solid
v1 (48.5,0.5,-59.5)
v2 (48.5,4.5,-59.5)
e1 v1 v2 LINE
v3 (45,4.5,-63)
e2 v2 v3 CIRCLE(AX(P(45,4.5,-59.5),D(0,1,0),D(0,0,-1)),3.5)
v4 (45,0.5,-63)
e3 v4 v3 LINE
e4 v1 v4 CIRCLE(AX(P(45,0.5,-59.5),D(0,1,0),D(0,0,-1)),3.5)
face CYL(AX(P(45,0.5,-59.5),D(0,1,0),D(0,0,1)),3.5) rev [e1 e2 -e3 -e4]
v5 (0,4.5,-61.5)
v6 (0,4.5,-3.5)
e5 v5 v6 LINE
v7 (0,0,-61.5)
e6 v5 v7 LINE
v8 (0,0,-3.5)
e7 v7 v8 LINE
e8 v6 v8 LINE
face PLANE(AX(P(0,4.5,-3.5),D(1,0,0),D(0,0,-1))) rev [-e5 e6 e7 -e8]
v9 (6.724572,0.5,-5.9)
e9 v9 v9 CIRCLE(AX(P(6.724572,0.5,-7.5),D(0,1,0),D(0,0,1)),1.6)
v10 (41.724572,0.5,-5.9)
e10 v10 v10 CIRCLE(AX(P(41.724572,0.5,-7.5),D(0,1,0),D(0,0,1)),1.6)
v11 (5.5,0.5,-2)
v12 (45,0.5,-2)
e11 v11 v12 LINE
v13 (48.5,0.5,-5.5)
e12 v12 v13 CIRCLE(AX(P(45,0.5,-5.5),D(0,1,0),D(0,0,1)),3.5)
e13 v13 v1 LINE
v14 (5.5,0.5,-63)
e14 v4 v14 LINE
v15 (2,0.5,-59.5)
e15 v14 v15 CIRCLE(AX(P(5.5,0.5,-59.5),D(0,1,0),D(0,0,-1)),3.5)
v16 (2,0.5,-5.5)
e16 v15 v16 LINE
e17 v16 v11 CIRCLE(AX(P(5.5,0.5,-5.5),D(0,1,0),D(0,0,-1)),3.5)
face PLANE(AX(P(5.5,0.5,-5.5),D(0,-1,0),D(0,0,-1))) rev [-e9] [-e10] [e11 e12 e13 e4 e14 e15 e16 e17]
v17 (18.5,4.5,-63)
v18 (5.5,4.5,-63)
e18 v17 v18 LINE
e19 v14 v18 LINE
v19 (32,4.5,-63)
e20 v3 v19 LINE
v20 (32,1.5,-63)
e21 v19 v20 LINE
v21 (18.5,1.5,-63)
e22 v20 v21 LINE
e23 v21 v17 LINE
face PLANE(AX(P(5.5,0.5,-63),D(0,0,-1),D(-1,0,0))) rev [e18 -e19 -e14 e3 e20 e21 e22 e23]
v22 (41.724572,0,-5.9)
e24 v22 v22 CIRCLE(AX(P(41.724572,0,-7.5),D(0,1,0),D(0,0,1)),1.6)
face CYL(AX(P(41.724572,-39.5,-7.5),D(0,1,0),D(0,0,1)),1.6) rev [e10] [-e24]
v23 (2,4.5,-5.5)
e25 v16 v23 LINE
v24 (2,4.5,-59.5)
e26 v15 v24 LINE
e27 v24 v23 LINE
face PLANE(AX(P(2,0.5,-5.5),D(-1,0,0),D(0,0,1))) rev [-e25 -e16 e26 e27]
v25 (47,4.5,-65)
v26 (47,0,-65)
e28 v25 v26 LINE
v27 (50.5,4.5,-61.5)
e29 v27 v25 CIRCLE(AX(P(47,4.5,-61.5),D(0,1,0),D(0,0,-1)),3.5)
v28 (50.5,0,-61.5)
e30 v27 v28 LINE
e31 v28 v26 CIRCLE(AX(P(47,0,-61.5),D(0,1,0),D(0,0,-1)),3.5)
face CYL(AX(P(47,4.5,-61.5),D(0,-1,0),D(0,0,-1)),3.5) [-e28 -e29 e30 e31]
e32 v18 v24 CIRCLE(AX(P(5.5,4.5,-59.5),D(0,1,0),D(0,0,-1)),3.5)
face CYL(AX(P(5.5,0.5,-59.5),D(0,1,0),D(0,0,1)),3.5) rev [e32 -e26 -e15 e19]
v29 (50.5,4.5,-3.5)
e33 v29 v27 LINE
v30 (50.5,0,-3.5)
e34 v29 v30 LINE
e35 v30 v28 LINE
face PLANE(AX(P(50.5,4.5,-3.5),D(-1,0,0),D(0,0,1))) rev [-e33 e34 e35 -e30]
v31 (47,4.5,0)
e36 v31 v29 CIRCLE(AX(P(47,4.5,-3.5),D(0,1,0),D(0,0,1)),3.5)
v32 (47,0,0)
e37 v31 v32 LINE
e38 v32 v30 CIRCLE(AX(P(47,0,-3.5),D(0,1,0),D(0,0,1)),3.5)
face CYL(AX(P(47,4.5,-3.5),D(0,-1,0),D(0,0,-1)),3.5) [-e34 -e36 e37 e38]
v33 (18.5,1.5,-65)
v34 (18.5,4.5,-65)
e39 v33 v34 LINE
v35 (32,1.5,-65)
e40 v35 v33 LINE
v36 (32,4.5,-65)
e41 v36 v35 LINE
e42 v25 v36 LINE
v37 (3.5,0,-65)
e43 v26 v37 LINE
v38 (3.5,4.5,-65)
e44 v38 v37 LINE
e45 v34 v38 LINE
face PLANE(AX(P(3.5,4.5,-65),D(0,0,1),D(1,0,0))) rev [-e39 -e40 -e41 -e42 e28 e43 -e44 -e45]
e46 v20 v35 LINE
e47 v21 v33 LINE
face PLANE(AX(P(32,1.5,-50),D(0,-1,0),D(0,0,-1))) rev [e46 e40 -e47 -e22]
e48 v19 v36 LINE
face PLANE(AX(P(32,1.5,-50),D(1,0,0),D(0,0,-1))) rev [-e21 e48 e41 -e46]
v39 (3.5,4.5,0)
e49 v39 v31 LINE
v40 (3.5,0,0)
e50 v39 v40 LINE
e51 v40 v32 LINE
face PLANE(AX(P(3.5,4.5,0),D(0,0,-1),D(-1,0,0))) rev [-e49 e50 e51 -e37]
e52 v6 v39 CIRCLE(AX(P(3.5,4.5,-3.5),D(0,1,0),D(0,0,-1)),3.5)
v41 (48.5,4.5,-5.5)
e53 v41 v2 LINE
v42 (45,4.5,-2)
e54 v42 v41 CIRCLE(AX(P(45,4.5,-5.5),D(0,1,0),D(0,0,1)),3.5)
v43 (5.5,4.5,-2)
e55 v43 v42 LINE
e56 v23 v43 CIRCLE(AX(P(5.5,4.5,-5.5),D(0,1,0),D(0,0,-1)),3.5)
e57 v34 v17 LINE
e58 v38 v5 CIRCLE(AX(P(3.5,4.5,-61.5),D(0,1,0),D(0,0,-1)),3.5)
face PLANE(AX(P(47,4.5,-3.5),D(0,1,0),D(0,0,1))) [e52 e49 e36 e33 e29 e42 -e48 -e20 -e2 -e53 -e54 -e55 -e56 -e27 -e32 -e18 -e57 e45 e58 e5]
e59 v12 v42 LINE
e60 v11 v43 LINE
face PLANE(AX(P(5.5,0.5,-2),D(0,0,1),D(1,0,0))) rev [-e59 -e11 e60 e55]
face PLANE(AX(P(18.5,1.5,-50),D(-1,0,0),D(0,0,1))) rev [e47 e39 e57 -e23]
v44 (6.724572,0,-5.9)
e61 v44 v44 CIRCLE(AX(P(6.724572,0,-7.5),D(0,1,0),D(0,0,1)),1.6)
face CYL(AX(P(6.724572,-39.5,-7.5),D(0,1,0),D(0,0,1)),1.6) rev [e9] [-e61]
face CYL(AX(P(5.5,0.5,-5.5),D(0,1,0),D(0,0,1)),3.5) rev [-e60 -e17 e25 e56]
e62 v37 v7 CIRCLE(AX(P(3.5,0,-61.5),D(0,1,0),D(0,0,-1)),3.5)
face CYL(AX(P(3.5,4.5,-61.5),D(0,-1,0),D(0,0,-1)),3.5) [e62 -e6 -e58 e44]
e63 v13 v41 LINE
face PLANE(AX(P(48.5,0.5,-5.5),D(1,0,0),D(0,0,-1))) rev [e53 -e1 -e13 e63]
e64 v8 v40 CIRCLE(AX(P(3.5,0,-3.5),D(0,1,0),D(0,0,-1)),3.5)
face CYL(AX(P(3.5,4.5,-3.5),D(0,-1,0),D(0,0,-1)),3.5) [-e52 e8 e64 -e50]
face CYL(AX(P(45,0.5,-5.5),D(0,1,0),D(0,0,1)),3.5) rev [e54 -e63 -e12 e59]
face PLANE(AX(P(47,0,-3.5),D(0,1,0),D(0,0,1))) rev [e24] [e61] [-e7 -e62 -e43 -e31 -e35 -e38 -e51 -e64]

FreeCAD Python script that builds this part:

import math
import FreeCAD as App
import Part
import Sketcher

V = App.Vector
Q = App.Units.Quantity


def add_polygon(sketch, points):
    """Adds a closed chain of lines whose ends are joined by coincident constraints."""
    first, n = sketch.GeometryCount, len(points)
    for a, b in zip(points, points[1:] + points[:1]):
        sketch.addGeometry(Part.LineSegment(App.Vector(*a, 0), App.Vector(*b, 0)), False)
    for i in range(n):
        sketch.addConstraint(Sketcher.Constraint("Coincident", first + i, 2, first + (i + 1) % n, 1))

doc = App.newDocument("Part")
params = doc.addObject("Spreadsheet::Sheet", "Params")
for row, (alias, value) in enumerate([
    ("sketch1_radius", "3.5 mm"),
    ("sketch1_height", "58 mm"),
    ("sketch1_width", "43.5 mm"),
    ("pad1_length", "4.5 mm"),
    ("sketch2_radius", "3.5 mm"),
    ("sketch2_height", "54 mm"),
    ("sketch2_width", "39.5 mm"),
    ("pocket1_length", "4 mm"),
    ("sketch3_height", "6 mm"),
    ("sketch3_width", "13.5 mm"),
    ("pocket2_length", "15 mm"),
    ("sketch4_diameter", "3.2 mm"),
    ("pocket3_length", "40 mm"),
], start=1):
    params.set(f"A{row}", alias)
    params.set(f"B{row}", "=" + value)
    params.setAlias(f"B{row}", alias)

body = doc.addObject("PartDesign::Body", "Body")

sketch1 = body.newObject("Sketcher::SketchObject", "Sketch")
sketch1.AttachmentSupport = (doc.getObject("XZ_Plane"), [""])
sketch1.MapMode = "FlatFace"
sketch1.addGeometry(Part.LineSegment(V(3.5, 0, 0), V(47, 0, 0)), False)
sketch1.addGeometry(Part.ArcOfCircle(Part.Circle(V(47, -3.5, 0), V(0, 0, 1), 3.5), math.radians(0), math.radians(90)), False)
sketch1.addGeometry(Part.LineSegment(V(50.5, -3.5, 0), V(50.5, -61.5, 0)), False)
sketch1.addGeometry(Part.ArcOfCircle(Part.Circle(V(47, -61.5, 0), V(0, 0, 1), 3.5), math.radians(-90), math.radians(0)), False)
sketch1.addGeometry(Part.LineSegment(V(47, -65, 0), V(3.5, -65, 0)), False)
sketch1.addGeometry(Part.ArcOfCircle(Part.Circle(V(3.5, -61.5, 0), V(0, 0, 1), 3.5), math.radians(-180), math.radians(-90)), False)
sketch1.addGeometry(Part.LineSegment(V(0, -61.5, 0), V(0, -3.5, 0)), False)
sketch1.addGeometry(Part.ArcOfCircle(Part.Circle(V(3.5, -3.5, 0), V(0, 0, 1), 3.5), math.radians(90), math.radians(180)), False)
sketch1.addConstraint(Sketcher.Constraint("Tangent", 0, 2, 1, 2))
sketch1.addConstraint(Sketcher.Constraint("Tangent", 1, 1, 2, 1))
sketch1.addConstraint(Sketcher.Constraint("Tangent", 2, 2, 3, 2))
sketch1.addConstraint(Sketcher.Constraint("Tangent", 3, 1, 4, 1))
sketch1.addConstraint(Sketcher.Constraint("Tangent", 4, 2, 5, 2))
sketch1.addConstraint(Sketcher.Constraint("Tangent", 5, 1, 6, 1))
sketch1.addConstraint(Sketcher.Constraint("Tangent", 6, 2, 7, 2))
sketch1.addConstraint(Sketcher.Constraint("Tangent", 7, 1, 0, 1))
sketch1.addConstraint(Sketcher.Constraint("Horizontal", 0))
sketch1.addConstraint(Sketcher.Constraint("Vertical", 2))
sketch1.addConstraint(Sketcher.Constraint("Horizontal", 4))
sketch1.addConstraint(Sketcher.Constraint("Vertical", 6))
sketch1.addConstraint(Sketcher.Constraint("Equal", 1, 3))
sketch1.addConstraint(Sketcher.Constraint("Equal", 3, 5))
sketch1.addConstraint(Sketcher.Constraint("Equal", 5, 7))
sketch1.addConstraint(Sketcher.Constraint("PointOnObject", 0, 2, -1))
sketch1.addConstraint(Sketcher.Constraint("PointOnObject", 5, 1, -2))
sketch1.addConstraint(Sketcher.Constraint("Radius", 1, Q("3.5 mm")))
sketch1.addConstraint(Sketcher.Constraint("DistanceY", 2, 2, 2, 1, Q("58 mm")))
sketch1.addConstraint(Sketcher.Constraint("DistanceX", 0, 1, 0, 2, Q("43.5 mm")))
sketch1.setExpression("Constraints[17]", "Params.sketch1_radius")
sketch1.setExpression("Constraints[18]", "Params.sketch1_height")
sketch1.setExpression("Constraints[19]", "Params.sketch1_width")
pad1 = body.newObject("PartDesign::Pad", "Pad")
pad1.Profile = sketch1
pad1.setExpression("Length", "Params.pad1_length")
pad1.Reversed = True

sketch2 = body.newObject("Sketcher::SketchObject", "Sketch001")
sketch2.AttachmentSupport = (doc.getObject("XZ_Plane"), [""])
sketch2.MapMode = "FlatFace"
sketch2.AttachmentOffset = App.Placement(V(0, 0, -4.5), App.Rotation())
sketch2.addGeometry(Part.LineSegment(V(5.5, -2, 0), V(45, -2, 0)), False)
sketch2.addGeometry(Part.ArcOfCircle(Part.Circle(V(45, -5.5, 0), V(0, 0, 1), 3.5), math.radians(0), math.radians(90)), False)
sketch2.addGeometry(Part.LineSegment(V(48.5, -5.5, 0), V(48.5, -59.5, 0)), False)
sketch2.addGeometry(Part.ArcOfCircle(Part.Circle(V(45, -59.5, 0), V(0, 0, 1), 3.5), math.radians(-90), math.radians(0)), False)
sketch2.addGeometry(Part.LineSegment(V(45, -63, 0), V(5.5, -63, 0)), False)
sketch2.addGeometry(Part.ArcOfCircle(Part.Circle(V(5.5, -59.5, 0), V(0, 0, 1), 3.5), math.radians(-180), math.radians(-90)), False)
sketch2.addGeometry(Part.LineSegment(V(2, -59.5, 0), V(2, -5.5, 0)), False)
sketch2.addGeometry(Part.ArcOfCircle(Part.Circle(V(5.5, -5.5, 0), V(0, 0, 1), 3.5), math.radians(90), math.radians(180)), False)
sketch2.addConstraint(Sketcher.Constraint("Tangent", 0, 2, 1, 2))
sketch2.addConstraint(Sketcher.Constraint("Tangent", 1, 1, 2, 1))
sketch2.addConstraint(Sketcher.Constraint("Tangent", 2, 2, 3, 2))
sketch2.addConstraint(Sketcher.Constraint("Tangent", 3, 1, 4, 1))
sketch2.addConstraint(Sketcher.Constraint("Tangent", 4, 2, 5, 2))
sketch2.addConstraint(Sketcher.Constraint("Tangent", 5, 1, 6, 1))
sketch2.addConstraint(Sketcher.Constraint("Tangent", 6, 2, 7, 2))
sketch2.addConstraint(Sketcher.Constraint("Tangent", 7, 1, 0, 1))
sketch2.addConstraint(Sketcher.Constraint("Horizontal", 0))
sketch2.addConstraint(Sketcher.Constraint("Vertical", 2))
sketch2.addConstraint(Sketcher.Constraint("Horizontal", 4))
sketch2.addConstraint(Sketcher.Constraint("Vertical", 6))
sketch2.addConstraint(Sketcher.Constraint("Equal", 1, 3))
sketch2.addConstraint(Sketcher.Constraint("Equal", 3, 5))
sketch2.addConstraint(Sketcher.Constraint("Equal", 5, 7))
sketch2.addConstraint(Sketcher.Constraint("Radius", 1, Q("3.5 mm")))
sketch2.addConstraint(Sketcher.Constraint("DistanceY", 2, 2, 2, 1, Q("54 mm")))
sketch2.addConstraint(Sketcher.Constraint("DistanceX", 0, 1, 0, 2, Q("39.5 mm")))
sketch2.addConstraint(Sketcher.Constraint("DistanceX", -1, 1, 1, 3, Q("45 mm")))
sketch2.addConstraint(Sketcher.Constraint("DistanceY", 0, 2, -1, 1, Q("2 mm")))
sketch2.setExpression("Constraints[15]", "Params.sketch2_radius")
sketch2.setExpression("Constraints[16]", "Params.sketch2_height")
sketch2.setExpression("Constraints[17]", "Params.sketch2_width")
pocket1 = body.newObject("PartDesign::Pocket", "Pocket")
pocket1.Profile = sketch2
pocket1.setExpression("Length", "Params.pocket1_length")
pocket1.Reversed = True

sketch3 = body.newObject("Sketcher::SketchObject", "Sketch002")
sketch3.AttachmentSupport = (doc.getObject("XY_Plane"), [""])
sketch3.MapMode = "FlatFace"
sketch3.AttachmentOffset = App.Placement(V(0, 0, -65), App.Rotation())
add_polygon(sketch3, [(32, 8), (32, 2), (18, 2), (18, 8)])
sketch3.addConstraint(Sketcher.Constraint("Vertical", 0))
sketch3.addConstraint(Sketcher.Constraint("Horizontal", 1))
sketch3.addConstraint(Sketcher.Constraint("Vertical", 2))
sketch3.addConstraint(Sketcher.Constraint("Horizontal", 3))
sketch3.addConstraint(Sketcher.Constraint("DistanceY", 0, 2, 0, 1, Q("6 mm")))
sketch3.addConstraint(Sketcher.Constraint("DistanceX", 1, 2, 1, 1, Q("13.5 mm")))
sketch3.addConstraint(Sketcher.Constraint("DistanceX", -1, 1, 0, 2, Q("32 mm")))
sketch3.addConstraint(Sketcher.Constraint("DistanceY", -1, 1, 0, 2, Q("1.5 mm")))
sketch3.setExpression("Constraints[8]", "Params.sketch3_height")
sketch3.setExpression("Constraints[9]", "Params.sketch3_width")
pocket2 = body.newObject("PartDesign::Pocket", "Pocket001")
pocket2.Profile = sketch3
pocket2.setExpression("Length", "Params.pocket2_length")
pocket2.Reversed = True

sketch4 = body.newObject("Sketcher::SketchObject", "Sketch003")
sketch4.AttachmentSupport = (doc.getObject("XZ_Plane"), [""])
sketch4.MapMode = "FlatFace"
sketch4.AttachmentOffset = App.Placement(V(0, 0, -0.5), App.Rotation())
sketch4.addGeometry(Part.Circle(V(6.7, -7.5, 0), V(0, 0, 1), 1.6), False)
sketch4.addGeometry(Part.Circle(V(41.7, -7.5, 0), V(0, 0, 1), 1.6), False)
sketch4.addConstraint(Sketcher.Constraint("Equal", 0, 1))
sketch4.addConstraint(Sketcher.Constraint("Horizontal", 0, 3, 1, 3))
sketch4.addConstraint(Sketcher.Constraint("Diameter", 0, Q("3.2 mm")))
sketch4.addConstraint(Sketcher.Constraint("DistanceX", 0, 3, 1, 3, Q("35 mm")))
sketch4.addConstraint(Sketcher.Constraint("DistanceY", 0, 3, -1, 1, Q("7.5 mm")))
sketch4.addConstraint(Sketcher.Constraint("DistanceX", -1, 1, 0, 3, Q("6.724572 mm")))
sketch4.setExpression("Constraints[2]", "Params.sketch4_diameter")
pocket3 = body.newObject("PartDesign::Pocket", "Pocket002")
pocket3.Profile = sketch4
pocket3.setExpression("Length", "Params.pocket3_length")
pocket3.Reversed = True

doc.recompute()
